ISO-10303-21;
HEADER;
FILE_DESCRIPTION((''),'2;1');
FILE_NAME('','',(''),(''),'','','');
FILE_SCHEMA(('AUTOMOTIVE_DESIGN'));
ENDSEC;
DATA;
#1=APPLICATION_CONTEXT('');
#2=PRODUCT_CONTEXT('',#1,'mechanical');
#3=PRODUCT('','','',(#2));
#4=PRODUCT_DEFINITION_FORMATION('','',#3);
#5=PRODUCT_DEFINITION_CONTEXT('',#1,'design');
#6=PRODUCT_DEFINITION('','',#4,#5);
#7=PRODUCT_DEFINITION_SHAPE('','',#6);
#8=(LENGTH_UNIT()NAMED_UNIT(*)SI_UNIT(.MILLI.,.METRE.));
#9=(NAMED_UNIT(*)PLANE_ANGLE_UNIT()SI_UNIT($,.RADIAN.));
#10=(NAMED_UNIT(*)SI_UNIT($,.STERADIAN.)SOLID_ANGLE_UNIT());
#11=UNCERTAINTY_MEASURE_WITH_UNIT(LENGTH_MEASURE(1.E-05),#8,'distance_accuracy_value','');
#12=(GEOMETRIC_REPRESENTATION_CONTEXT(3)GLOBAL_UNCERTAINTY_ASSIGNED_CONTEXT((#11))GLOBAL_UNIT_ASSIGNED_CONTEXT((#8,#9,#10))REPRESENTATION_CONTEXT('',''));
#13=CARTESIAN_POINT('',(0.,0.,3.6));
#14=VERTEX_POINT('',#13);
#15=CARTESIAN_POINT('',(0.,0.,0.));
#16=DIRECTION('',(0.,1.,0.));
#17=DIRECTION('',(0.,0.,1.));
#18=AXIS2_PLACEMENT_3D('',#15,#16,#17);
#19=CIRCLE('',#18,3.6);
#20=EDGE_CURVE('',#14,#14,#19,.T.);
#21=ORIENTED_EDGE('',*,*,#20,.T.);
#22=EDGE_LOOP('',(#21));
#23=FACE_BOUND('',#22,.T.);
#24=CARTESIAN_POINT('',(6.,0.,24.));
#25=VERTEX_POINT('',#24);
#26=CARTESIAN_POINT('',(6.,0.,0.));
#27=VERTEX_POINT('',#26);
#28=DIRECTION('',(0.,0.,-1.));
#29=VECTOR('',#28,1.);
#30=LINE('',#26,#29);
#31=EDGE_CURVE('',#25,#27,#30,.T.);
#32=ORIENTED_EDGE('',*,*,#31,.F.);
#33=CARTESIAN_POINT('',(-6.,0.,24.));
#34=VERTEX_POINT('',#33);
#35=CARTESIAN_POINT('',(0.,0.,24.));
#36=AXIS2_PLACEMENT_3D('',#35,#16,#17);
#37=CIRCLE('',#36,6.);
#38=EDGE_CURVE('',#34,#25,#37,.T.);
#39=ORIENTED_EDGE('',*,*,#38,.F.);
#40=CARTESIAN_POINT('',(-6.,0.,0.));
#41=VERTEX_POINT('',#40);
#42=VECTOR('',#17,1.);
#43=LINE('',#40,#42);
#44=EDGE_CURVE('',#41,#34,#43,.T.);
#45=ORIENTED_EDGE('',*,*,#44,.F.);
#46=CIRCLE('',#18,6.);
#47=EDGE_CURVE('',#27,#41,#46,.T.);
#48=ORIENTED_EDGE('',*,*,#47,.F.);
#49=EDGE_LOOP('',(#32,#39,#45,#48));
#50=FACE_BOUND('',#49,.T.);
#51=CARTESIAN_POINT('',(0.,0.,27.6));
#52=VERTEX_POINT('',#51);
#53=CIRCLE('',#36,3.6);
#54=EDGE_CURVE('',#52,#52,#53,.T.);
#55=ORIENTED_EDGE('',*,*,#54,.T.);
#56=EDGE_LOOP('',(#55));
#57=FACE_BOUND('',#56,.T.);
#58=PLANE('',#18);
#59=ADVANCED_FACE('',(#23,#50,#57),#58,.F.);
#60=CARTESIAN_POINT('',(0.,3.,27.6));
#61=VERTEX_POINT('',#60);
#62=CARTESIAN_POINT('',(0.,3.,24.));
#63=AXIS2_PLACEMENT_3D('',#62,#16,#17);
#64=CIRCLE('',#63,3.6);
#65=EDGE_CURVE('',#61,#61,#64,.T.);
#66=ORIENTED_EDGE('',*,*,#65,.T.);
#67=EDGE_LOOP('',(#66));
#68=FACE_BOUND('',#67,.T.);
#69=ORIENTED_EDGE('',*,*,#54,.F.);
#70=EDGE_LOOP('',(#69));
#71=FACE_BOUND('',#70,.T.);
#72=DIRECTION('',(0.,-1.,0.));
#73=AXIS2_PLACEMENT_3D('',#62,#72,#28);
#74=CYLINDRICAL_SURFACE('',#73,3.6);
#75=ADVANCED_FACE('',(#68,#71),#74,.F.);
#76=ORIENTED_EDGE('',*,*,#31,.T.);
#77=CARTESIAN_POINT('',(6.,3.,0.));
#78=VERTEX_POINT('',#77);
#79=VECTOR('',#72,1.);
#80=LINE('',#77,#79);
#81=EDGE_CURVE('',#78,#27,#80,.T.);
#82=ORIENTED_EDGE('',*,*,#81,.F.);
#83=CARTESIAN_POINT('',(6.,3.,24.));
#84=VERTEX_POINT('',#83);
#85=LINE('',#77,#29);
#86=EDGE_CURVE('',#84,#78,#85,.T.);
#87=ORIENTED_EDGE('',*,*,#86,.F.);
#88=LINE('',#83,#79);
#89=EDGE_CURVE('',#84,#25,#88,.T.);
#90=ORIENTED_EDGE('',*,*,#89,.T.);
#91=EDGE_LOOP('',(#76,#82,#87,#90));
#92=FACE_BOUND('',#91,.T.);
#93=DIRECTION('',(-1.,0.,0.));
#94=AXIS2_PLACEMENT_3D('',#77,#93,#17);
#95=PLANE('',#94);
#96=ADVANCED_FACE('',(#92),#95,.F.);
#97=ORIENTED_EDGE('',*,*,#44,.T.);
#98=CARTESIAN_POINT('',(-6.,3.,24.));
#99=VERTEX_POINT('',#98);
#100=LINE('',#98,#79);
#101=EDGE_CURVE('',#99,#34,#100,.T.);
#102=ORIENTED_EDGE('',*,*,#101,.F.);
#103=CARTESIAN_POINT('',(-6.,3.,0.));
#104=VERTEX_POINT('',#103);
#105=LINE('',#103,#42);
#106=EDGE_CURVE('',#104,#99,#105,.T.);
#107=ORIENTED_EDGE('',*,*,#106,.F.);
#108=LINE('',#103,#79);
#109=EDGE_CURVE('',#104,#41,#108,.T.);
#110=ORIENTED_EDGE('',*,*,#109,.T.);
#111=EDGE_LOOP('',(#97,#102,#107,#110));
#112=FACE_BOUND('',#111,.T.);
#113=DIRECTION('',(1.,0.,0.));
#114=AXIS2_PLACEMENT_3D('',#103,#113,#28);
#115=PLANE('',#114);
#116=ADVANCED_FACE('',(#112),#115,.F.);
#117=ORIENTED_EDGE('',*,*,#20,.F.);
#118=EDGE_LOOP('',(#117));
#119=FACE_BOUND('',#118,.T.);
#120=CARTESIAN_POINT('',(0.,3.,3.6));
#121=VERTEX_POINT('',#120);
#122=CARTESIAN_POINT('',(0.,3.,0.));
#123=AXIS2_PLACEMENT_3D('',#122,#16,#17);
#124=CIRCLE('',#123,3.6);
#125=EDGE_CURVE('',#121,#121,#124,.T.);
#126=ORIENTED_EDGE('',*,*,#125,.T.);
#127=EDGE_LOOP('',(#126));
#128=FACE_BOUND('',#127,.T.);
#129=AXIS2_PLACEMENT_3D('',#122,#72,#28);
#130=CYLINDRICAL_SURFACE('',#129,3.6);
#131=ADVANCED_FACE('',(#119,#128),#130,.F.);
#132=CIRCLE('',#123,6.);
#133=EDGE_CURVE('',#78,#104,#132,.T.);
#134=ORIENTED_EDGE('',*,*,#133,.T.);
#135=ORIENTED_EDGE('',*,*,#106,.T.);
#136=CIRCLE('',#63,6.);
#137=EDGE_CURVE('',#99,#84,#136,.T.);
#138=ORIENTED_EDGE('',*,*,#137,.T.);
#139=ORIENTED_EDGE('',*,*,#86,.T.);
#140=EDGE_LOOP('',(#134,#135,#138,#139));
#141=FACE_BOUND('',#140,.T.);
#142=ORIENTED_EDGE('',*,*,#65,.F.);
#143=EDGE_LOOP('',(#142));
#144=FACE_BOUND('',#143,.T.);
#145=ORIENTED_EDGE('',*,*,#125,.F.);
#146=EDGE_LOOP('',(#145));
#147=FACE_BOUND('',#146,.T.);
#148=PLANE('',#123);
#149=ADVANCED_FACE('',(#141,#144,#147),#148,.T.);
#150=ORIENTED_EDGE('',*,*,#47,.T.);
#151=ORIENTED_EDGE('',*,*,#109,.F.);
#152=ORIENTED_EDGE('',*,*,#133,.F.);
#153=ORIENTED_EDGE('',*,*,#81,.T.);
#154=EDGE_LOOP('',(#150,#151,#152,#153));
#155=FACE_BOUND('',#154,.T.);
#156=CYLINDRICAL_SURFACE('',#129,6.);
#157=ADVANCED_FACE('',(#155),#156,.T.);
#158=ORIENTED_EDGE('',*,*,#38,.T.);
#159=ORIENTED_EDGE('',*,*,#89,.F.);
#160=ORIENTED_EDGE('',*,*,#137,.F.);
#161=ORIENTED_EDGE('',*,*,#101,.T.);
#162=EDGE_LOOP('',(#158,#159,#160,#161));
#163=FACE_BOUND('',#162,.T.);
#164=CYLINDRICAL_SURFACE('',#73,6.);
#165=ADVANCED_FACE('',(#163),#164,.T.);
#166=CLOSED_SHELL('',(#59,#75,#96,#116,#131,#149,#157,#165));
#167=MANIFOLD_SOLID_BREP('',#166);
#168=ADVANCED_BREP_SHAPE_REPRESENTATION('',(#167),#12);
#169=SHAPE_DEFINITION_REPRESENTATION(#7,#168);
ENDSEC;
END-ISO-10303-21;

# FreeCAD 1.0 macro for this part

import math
import FreeCAD as App
import Part
import Sketcher
Q = App.Units.Quantity

doc = App.newDocument("Part")
params = doc.addObject("Spreadsheet::Sheet", "Params")
for row, (alias, value) in enumerate([
    ("sketch1_radius", "6 mm"),
    ("sketch1_diameter", "7.2 mm"),
    ("sketch1_height", "24 mm"),
    ("pad1_length", "3 mm"),
], start=1):
    params.set(f"A{row}", alias)
    params.set(f"B{row}", "=" + value)
    params.setAlias(f"B{row}", alias)

body = doc.addObject("PartDesign::Body", "Body")

# Sketch on XZ plane
sketch1 = body.newObject("Sketcher::SketchObject", "Sketch")
sketch1.AttachmentSupport = (doc.getObject("XZ_Plane"), [""])
sketch1.MapMode = "FlatFace"
sketch1.addGeometry([
    Part.LineSegment(App.Vector(6, 24, 0), App.Vector(6, 0, 0)),  # 0
    Part.ArcOfCircle(Part.Circle(App.Vector(0, 0, 0), App.Vector(0, 0, 1), 6), math.radians(180), math.radians(360)),  # 1
    Part.LineSegment(App.Vector(-6, 0, 0), App.Vector(-6, 24, 0)),  # 2
    Part.ArcOfCircle(Part.Circle(App.Vector(0, 24, 0), App.Vector(0, 0, 1), 6), math.radians(0), math.radians(180)),  # 3
    Part.Circle(App.Vector(0, 24, 0), App.Vector(0, 0, 1), 3.6),  # 4
    Part.Circle(App.Vector(0, 0, 0), App.Vector(0, 0, 1), 3.6),  # 5
], False)
sketch1.addConstraint([
    Sketcher.Constraint("Tangent", 0, 2, 1, 2),
    Sketcher.Constraint("Tangent", 1, 1, 2, 1),
    Sketcher.Constraint("Tangent", 2, 2, 3, 2),
    Sketcher.Constraint("Tangent", 3, 1, 0, 1),
    Sketcher.Constraint("Vertical", 0),
    Sketcher.Constraint("Vertical", 2),
    Sketcher.Constraint("Coincident", 1, 3, -1, 1),
    Sketcher.Constraint("Coincident", 5, 3, -1, 1),
    Sketcher.Constraint("Coincident", 4, 3, 3, 3),
    Sketcher.Constraint("Equal", 4, 5),
    Sketcher.Constraint("Radius", 1, Q("6 mm")),
    Sketcher.Constraint("Diameter", 4, Q("7.2 mm")),
    Sketcher.Constraint("DistanceY", 0, 2, 0, 1, Q("24 mm")),
])
sketch1.setExpression("Constraints[10]", "Params.sketch1_radius")
sketch1.setExpression("Constraints[11]", "Params.sketch1_diameter")
sketch1.setExpression("Constraints[12]", "Params.sketch1_height")
pad1 = body.newObject("PartDesign::Pad", "Pad")
pad1.Profile = sketch1
pad1.setExpression("Length", "Params.pad1_length")
pad1.Reversed = True

doc.recompute()
